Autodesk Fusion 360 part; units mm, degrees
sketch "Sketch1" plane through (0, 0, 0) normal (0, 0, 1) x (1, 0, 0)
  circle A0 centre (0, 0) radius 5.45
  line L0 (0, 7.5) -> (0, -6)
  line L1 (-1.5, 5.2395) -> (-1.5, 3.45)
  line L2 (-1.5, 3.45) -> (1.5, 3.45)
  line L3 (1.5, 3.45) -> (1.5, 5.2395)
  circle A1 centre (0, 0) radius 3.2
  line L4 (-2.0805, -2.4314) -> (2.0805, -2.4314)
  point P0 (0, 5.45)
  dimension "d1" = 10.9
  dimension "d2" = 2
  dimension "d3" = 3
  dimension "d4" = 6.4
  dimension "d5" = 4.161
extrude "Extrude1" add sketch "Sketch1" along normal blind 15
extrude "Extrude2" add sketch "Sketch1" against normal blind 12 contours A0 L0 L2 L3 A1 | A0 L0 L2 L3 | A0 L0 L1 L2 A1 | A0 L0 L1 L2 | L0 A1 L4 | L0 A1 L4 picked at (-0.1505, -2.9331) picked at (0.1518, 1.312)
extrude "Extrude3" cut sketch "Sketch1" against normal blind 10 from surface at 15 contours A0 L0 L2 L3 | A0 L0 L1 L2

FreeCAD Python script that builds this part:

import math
import FreeCAD as App
import Part
import Sketcher

doc = App.newDocument("Part")
params = doc.addObject("Spreadsheet::Sheet", "Params")
for row, (alias, value) in enumerate([
    ("sketch1_diameter", "10.9 mm"),
    ("pad1_length", "15 mm"),
    ("sketch2_diameter", "10.9 mm"),
    ("sketch2_radius", "3.2 mm"),
    ("pad2_length", "12 mm"),
    ("sketch3_width", "3 mm"),
    ("sketch3_radius", "5.45 mm"),
    ("pocket1_length", "10 mm"),
], start=1):
    params.set(f"A{row}", alias)
    params.set(f"B{row}", "=" + value)
    params.setAlias(f"B{row}", alias)

body = doc.addObject("PartDesign::Body", "Body")

# Sketch on XY plane
sketch1 = doc.addObject("Sketcher::SketchObject", "Sketch")
body.addObject(sketch1)
sketch1.AttachmentSupport = (doc.XY_Plane, [""])
sketch1.MapMode = "FlatFace"
sketch1.addGeometry(Part.Circle(App.Vector(0, 0, 0), App.Vector(0, 0, 1), 5), False)
sketch1.addConstraint([
    Sketcher.Constraint("Coincident", 0, 3, -1, 1),
    Sketcher.Constraint("Diameter", 0, 10.9),
])
sketch1.setExpression("Constraints[1]", "Params.sketch1_diameter")
pad1 = doc.addObject("PartDesign::Pad", "Pad")
body.addObject(pad1)
pad1.Profile = sketch1
pad1.setExpression("Length", "Params.pad1_length")

# Sketch on XY plane
sketch2 = doc.addObject("Sketcher::SketchObject", "Sketch001")
body.addObject(sketch2)
sketch2.AttachmentSupport = (doc.XY_Plane, [""])
sketch2.MapMode = "FlatFace"
sketch2.addGeometry([
    Part.Circle(App.Vector(0, 0, 0), App.Vector(0, 0, 1), 5.5),  # 0
    Part.LineSegment(App.Vector(0, -2.4, 0), App.Vector(-2.1, -2.4, 0)),  # 1
    Part.ArcOfCircle(Part.Circle(App.Vector(0, 0, 0), App.Vector(0, 0, 1), 3.2), math.radians(90), math.radians(229)),  # 2
    Part.LineSegment(App.Vector(0, 3.2, 0), App.Vector(0, -2.4, 0)),  # 3
    Part.LineSegment(App.Vector(0, -2.4, 0), App.Vector(2.1, -2.4, 0)),  # 4
    Part.ArcOfCircle(Part.Circle(App.Vector(0, 0, 0), App.Vector(0, 0, 1), 3.2), math.radians(-90), math.radians(-49)),  # 5
    Part.LineSegment(App.Vector(0, -3.2, 0), App.Vector(0, -2.4, 0)),  # 6
], False)
sketch2.addConstraint([
    Sketcher.Constraint("Coincident", 1, 2, 2, 2),
    Sketcher.Constraint("Coincident", 2, 1, 3, 1),
    Sketcher.Constraint("Coincident", 3, 2, 1, 1),
    Sketcher.Constraint("Coincident", 4, 2, 5, 2),
    Sketcher.Constraint("Coincident", 5, 1, 6, 1),
    Sketcher.Constraint("Coincident", 6, 2, 4, 1),
    Sketcher.Constraint("Horizontal", 1),
    Sketcher.Constraint("Vertical", 3),
    Sketcher.Constraint("Horizontal", 4),
    Sketcher.Constraint("Vertical", 6),
    Sketcher.Constraint("Coincident", 0, 3, -1, 1),
    Sketcher.Constraint("Coincident", 2, 3, -1, 1),
    Sketcher.Constraint("Coincident", 5, 3, -1, 1),
    Sketcher.Constraint("Coincident", 6, 2, 3, 2),
    Sketcher.Constraint("Equal", 2, 5),
    Sketcher.Constraint("PointOnObject", 2, 1, -2),
    Sketcher.Constraint("Diameter", 0, 10.9),
    Sketcher.Constraint("Radius", 2, 3.2),
    Sketcher.Constraint("DistanceX", 1, 2, 4, 2, 4.161),
])
sketch2.setExpression("Constraints[16]", "Params.sketch2_diameter")
sketch2.setExpression("Constraints[17]", "Params.sketch2_radius")
pad2 = doc.addObject("PartDesign::Pad", "Pad001")
body.addObject(pad2)
pad2.Profile = sketch2
pad2.setExpression("Length", "Params.pad2_length")
pad2.Reversed = True

# Sketch on XY plane
sketch3 = doc.addObject("Sketcher::SketchObject", "Sketch002")
body.addObject(sketch3)
sketch3.AttachmentSupport = (doc.XY_Plane, [""])
sketch3.MapMode = "FlatFace"
sketch3.AttachmentOffset = App.Placement(App.Vector(0, 0, 15), App.Rotation())
sketch3.addGeometry([
    Part.LineSegment(App.Vector(1.5, 3.5, 0), App.Vector(1.5, 5.2, 0)),
    Part.ArcOfCircle(Part.Circle(App.Vector(0, 0, 0), App.Vector(0, 0, 1), 5.5), math.radians(74), math.radians(106)),
    Part.LineSegment(App.Vector(-1.5, 5.2, 0), App.Vector(-1.5, 3.5, 0)),
    Part.LineSegment(App.Vector(-1.5, 3.5, 0), App.Vector(1.5, 3.5, 0)),
], False)
sketch3.addConstraint([
    Sketcher.Constraint("Coincident", 0, 2, 1, 1),
    Sketcher.Constraint("Coincident", 1, 2, 2, 1),
    Sketcher.Constraint("Coincident", 2, 2, 3, 1),
    Sketcher.Constraint("Coincident", 3, 2, 0, 1),
    Sketcher.Constraint("Vertical", 0),
    Sketcher.Constraint("Vertical", 2),
    Sketcher.Constraint("Horizontal", 3),
    Sketcher.Constraint("Coincident", 1, 3, -1, 1),
    Sketcher.Constraint("Horizontal", 0, 2, 1, 2),
    Sketcher.Constraint("DistanceX", 3, 1, 3, 2, 3.0),
    Sketcher.Constraint("Radius", 1, 5.45),
    Sketcher.Constraint("DistanceY", -1, 1, 2, 2, 3.45),
])
sketch3.setExpression("Constraints[9]", "Params.sketch3_width")
sketch3.setExpression("Constraints[10]", "Params.sketch3_radius")
pocket1 = doc.addObject("PartDesign::Pocket", "Pocket")
body.addObject(pocket1)
pocket1.Profile = sketch3
pocket1.setExpression("Length", "Params.pocket1_length")

doc.recompute()
